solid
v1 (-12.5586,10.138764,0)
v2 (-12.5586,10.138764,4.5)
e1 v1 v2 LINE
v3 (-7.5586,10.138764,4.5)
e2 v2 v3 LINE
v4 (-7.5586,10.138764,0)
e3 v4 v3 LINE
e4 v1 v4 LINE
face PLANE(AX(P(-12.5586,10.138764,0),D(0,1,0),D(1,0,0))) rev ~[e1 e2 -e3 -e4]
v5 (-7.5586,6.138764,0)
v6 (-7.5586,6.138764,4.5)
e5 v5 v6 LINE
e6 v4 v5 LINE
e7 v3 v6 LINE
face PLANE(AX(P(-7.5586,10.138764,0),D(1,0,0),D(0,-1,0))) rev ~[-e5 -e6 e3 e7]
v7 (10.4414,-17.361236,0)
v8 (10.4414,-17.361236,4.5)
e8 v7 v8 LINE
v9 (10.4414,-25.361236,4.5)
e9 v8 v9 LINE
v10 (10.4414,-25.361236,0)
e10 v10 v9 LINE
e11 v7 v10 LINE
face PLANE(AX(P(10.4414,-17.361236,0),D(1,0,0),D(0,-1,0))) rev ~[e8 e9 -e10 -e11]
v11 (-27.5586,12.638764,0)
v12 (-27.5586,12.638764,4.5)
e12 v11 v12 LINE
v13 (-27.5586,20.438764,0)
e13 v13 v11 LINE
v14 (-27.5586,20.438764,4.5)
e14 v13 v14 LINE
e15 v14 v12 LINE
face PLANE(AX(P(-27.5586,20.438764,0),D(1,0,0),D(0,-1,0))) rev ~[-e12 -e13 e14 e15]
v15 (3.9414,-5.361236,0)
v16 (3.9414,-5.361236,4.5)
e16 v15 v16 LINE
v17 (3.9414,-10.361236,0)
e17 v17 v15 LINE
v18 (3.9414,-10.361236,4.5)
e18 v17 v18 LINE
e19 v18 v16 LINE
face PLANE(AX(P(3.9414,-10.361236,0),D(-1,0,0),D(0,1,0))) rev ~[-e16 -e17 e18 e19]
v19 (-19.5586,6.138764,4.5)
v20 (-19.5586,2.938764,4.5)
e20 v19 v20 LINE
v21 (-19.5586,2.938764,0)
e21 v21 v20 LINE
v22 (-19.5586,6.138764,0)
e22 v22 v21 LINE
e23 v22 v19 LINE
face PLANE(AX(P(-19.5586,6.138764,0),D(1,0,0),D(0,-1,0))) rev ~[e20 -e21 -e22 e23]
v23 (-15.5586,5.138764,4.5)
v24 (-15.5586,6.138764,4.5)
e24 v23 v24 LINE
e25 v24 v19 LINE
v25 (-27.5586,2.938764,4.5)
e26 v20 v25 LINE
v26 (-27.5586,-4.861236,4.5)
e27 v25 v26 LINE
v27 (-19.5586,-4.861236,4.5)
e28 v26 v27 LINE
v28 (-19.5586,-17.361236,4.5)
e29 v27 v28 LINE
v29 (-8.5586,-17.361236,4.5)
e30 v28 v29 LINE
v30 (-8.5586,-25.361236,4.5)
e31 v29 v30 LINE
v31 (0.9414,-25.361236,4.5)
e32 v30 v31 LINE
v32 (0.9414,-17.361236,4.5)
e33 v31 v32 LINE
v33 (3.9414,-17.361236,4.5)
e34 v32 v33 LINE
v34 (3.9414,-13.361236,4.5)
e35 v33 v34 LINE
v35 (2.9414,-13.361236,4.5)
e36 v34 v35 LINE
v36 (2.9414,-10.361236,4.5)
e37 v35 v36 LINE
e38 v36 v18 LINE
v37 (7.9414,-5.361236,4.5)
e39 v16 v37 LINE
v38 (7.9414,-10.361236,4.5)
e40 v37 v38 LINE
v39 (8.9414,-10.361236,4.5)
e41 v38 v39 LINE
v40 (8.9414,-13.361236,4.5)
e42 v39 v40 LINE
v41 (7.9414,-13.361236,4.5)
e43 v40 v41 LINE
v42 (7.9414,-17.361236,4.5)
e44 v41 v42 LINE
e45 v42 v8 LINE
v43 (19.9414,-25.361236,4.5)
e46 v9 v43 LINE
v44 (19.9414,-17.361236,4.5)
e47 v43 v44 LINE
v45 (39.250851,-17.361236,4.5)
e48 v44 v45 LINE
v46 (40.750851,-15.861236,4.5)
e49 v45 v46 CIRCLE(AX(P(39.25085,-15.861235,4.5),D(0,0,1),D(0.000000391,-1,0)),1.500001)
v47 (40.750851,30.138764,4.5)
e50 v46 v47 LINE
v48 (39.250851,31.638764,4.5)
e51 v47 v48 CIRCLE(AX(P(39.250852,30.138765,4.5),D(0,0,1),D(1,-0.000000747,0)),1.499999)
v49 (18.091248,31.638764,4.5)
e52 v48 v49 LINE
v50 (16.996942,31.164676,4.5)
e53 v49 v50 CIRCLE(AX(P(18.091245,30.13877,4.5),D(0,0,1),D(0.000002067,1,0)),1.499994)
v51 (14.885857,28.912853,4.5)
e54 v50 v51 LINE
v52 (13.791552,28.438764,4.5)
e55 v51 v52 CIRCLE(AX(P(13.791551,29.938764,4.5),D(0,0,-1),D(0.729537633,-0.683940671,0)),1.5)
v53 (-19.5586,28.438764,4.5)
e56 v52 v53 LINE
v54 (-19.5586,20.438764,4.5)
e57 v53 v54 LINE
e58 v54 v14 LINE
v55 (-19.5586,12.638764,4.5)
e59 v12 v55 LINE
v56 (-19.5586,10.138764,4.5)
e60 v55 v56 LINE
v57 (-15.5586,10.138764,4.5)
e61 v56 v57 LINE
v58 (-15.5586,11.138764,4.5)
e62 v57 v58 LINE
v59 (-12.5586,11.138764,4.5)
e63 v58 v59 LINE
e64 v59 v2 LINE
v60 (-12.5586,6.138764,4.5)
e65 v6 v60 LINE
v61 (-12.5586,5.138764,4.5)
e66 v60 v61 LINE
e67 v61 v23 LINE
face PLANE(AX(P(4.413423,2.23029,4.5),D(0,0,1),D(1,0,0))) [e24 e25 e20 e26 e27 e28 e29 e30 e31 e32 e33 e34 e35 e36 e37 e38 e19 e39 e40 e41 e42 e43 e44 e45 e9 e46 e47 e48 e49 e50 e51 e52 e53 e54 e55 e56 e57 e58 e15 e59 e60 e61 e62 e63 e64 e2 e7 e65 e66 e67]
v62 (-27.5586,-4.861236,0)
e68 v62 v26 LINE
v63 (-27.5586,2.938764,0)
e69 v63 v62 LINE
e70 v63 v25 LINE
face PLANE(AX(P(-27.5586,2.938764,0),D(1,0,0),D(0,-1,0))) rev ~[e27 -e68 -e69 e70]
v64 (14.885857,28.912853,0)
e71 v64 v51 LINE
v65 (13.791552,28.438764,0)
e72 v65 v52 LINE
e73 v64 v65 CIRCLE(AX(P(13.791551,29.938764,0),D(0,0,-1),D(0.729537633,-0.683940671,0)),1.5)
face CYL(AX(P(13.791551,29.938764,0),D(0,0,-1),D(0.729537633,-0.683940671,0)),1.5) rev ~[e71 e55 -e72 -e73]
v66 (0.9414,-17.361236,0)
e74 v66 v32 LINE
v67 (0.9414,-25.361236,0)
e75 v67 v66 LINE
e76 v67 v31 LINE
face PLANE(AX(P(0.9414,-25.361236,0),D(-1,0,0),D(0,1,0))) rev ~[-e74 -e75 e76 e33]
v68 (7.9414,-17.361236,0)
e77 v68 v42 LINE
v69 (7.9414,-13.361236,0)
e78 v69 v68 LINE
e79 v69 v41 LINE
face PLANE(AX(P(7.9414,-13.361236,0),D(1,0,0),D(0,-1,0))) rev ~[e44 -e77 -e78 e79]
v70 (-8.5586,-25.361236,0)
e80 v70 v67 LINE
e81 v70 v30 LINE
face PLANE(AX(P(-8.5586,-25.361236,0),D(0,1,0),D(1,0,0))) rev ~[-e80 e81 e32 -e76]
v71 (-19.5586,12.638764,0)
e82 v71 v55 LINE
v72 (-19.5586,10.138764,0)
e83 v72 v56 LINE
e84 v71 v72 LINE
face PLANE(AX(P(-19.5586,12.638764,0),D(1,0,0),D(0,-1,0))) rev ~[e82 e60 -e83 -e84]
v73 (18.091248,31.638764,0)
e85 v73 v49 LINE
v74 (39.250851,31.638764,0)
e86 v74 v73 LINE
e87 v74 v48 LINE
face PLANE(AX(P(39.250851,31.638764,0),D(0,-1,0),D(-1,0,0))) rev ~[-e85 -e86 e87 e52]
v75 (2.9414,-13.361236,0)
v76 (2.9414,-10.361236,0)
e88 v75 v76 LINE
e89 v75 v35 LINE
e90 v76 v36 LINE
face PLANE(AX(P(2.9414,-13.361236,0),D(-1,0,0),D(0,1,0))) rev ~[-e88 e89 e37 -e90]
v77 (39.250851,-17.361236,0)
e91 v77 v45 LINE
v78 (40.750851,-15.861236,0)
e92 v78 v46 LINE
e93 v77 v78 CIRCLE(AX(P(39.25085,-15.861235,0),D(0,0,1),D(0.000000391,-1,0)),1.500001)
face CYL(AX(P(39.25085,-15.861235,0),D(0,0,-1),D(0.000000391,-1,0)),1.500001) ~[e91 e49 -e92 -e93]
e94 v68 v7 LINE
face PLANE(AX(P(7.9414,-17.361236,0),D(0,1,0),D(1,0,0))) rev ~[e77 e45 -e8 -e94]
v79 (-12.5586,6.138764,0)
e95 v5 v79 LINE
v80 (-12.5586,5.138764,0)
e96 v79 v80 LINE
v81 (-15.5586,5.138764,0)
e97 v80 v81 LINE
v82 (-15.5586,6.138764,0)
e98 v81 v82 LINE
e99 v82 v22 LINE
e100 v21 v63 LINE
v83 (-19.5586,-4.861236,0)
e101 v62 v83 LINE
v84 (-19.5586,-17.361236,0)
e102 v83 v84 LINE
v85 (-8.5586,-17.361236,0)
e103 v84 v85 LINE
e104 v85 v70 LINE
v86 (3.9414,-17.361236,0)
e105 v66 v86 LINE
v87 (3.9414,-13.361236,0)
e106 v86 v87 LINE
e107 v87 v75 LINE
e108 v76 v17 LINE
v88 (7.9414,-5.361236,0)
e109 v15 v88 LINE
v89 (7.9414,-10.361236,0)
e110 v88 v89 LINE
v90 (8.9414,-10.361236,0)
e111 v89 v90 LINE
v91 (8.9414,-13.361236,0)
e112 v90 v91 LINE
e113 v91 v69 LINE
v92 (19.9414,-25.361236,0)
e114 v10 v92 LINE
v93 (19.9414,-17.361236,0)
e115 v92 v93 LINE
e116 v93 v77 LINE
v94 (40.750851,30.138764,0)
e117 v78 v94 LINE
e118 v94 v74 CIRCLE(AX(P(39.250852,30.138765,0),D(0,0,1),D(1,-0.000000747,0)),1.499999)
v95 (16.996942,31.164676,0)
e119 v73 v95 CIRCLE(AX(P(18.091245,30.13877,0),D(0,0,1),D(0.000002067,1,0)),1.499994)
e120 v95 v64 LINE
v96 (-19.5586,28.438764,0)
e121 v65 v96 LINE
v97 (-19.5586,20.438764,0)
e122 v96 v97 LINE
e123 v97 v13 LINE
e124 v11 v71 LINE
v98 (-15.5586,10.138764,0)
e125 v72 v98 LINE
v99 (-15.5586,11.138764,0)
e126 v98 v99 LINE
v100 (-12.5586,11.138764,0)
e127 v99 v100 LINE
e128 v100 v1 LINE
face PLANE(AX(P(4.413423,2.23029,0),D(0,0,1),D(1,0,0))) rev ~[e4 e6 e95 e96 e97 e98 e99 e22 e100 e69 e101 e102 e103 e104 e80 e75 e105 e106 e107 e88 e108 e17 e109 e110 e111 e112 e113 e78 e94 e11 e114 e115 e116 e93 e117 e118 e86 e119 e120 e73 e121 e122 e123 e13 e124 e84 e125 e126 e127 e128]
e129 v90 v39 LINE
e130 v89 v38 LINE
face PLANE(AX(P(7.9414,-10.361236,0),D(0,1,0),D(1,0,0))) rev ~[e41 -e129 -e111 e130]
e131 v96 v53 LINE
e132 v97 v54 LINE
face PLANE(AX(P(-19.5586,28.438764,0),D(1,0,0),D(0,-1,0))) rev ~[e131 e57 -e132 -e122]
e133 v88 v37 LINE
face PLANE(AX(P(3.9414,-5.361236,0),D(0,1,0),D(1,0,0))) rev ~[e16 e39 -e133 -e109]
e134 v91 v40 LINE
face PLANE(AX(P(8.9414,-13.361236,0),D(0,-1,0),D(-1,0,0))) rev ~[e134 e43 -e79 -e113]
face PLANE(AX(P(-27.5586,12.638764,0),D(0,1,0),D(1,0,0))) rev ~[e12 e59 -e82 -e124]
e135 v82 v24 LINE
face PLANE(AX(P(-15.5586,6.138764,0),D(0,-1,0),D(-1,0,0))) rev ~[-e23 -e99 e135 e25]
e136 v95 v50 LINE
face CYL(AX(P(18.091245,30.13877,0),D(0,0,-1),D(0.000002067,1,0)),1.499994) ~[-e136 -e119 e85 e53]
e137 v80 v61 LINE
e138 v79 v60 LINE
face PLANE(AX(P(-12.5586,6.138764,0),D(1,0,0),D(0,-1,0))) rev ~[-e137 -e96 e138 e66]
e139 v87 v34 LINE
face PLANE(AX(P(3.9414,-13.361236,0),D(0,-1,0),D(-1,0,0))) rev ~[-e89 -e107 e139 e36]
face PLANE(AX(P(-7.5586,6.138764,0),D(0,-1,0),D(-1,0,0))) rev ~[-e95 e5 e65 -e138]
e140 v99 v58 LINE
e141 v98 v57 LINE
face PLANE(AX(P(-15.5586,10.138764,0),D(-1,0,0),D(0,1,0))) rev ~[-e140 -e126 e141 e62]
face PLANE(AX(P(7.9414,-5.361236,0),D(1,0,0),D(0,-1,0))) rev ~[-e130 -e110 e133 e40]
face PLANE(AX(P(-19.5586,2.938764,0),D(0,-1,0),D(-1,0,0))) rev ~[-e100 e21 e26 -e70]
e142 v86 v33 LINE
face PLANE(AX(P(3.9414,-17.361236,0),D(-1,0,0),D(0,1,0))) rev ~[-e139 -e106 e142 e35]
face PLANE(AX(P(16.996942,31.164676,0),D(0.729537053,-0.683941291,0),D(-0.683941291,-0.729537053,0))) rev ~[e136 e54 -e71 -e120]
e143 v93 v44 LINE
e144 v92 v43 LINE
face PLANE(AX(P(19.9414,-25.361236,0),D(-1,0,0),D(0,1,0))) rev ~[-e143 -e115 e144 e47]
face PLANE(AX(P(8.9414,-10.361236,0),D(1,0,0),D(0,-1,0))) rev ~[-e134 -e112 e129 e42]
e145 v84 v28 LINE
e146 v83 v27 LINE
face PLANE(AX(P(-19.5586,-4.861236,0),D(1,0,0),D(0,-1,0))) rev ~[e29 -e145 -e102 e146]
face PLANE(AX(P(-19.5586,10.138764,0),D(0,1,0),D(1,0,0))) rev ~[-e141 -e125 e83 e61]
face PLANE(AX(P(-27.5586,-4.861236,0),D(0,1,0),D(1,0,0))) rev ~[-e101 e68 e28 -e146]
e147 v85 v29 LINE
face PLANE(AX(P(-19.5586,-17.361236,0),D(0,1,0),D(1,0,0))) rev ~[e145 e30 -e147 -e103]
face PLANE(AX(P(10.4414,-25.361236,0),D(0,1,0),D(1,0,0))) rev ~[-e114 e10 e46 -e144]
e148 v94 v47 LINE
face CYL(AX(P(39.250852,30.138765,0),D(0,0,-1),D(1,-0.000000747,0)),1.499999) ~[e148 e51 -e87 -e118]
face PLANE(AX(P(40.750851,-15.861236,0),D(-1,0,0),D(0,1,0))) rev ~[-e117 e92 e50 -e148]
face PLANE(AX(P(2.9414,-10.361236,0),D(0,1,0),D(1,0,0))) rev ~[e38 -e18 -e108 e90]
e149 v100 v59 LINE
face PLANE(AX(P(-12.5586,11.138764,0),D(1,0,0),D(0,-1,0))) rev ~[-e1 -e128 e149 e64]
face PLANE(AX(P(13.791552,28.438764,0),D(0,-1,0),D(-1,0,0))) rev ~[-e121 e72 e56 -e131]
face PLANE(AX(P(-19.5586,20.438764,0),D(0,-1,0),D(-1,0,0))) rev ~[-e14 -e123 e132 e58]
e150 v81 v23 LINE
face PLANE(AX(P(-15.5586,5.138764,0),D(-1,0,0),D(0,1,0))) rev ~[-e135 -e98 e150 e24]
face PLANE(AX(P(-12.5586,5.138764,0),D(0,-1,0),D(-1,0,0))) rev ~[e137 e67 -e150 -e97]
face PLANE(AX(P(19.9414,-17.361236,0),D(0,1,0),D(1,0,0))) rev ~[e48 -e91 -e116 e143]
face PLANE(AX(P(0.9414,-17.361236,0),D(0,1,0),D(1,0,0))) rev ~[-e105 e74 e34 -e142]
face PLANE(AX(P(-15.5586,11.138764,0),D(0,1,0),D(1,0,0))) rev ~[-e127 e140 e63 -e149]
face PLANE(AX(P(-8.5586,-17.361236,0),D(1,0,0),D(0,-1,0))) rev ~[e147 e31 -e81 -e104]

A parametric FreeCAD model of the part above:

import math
import FreeCAD as App
import Part
import Sketcher
from FreeCAD import Vector
Q = App.Units.Quantity

doc = App.newDocument("Part")
body = doc.addObject("PartDesign::Body", "Body")

# Sketch on XY plane
sketch1 = doc.addObject("Sketcher::SketchObject", "Sketch")
body.addObject(sketch1)
sketch1.AttachmentSupport = (doc.XY_Plane, [""])
sketch1.MapMode = "FlatFace"
sketch1.addGeometry([
    Part.LineSegment(Vector(13.791552, 28.438764, 0), Vector(-19.5586, 28.438764, 0)),  # 0
    Part.LineSegment(Vector(-19.5586, 28.438764, 0), Vector(-19.5586, 20.438764, 0)),  # 1
    Part.LineSegment(Vector(-19.5586, 20.438764, 0), Vector(-27.5586, 20.438764, 0)),  # 2
    Part.LineSegment(Vector(-27.5586, 20.438764, 0), Vector(-27.5586, 12.638764, 0)),  # 3
    Part.LineSegment(Vector(-27.5586, 12.638764, 0), Vector(-19.5586, 12.638764, 0)),  # 4
    Part.LineSegment(Vector(-19.5586, 12.638764, 0), Vector(-19.5586, 10.138764, 0)),  # 5
    Part.LineSegment(Vector(-19.5586, 10.138764, 0), Vector(-15.5586, 10.138764, 0)),  # 6
    Part.LineSegment(Vector(-15.5586, 10.138764, 0), Vector(-15.5586, 11.138764, 0)),  # 7
    Part.LineSegment(Vector(-15.5586, 11.138764, 0), Vector(-12.5586, 11.138764, 0)),  # 8
    Part.LineSegment(Vector(-12.5586, 11.138764, 0), Vector(-12.5586, 10.138764, 0)),  # 9
    Part.LineSegment(Vector(-12.5586, 10.138764, 0), Vector(-7.5586, 10.138764, 0)),  # 10
    Part.LineSegment(Vector(-7.5586, 10.138764, 0), Vector(-7.5586, 6.138764, 0)),  # 11
    Part.LineSegment(Vector(-7.5586, 6.138764, 0), Vector(-12.5586, 6.138764, 0)),  # 12
    Part.LineSegment(Vector(-12.5586, 6.138764, 0), Vector(-12.5586, 5.138764, 0)),  # 13
    Part.LineSegment(Vector(-12.5586, 5.138764, 0), Vector(-15.5586, 5.138764, 0)),  # 14
    Part.LineSegment(Vector(-15.5586, 5.138764, 0), Vector(-15.5586, 6.138764, 0)),  # 15
    Part.LineSegment(Vector(-15.5586, 6.138764, 0), Vector(-19.5586, 6.138764, 0)),  # 16
    Part.LineSegment(Vector(-19.5586, 6.138764, 0), Vector(-19.5586, 2.938764, 0)),  # 17
    Part.LineSegment(Vector(-19.5586, 2.938764, 0), Vector(-27.5586, 2.938764, 0)),  # 18
    Part.LineSegment(Vector(-27.5586, 2.938764, 0), Vector(-27.5586, -4.861236, 0)),  # 19
    Part.LineSegment(Vector(-27.5586, -4.861236, 0), Vector(-19.5586, -4.861236, 0)),  # 20
    Part.LineSegment(Vector(-19.5586, -4.861236, 0), Vector(-19.5586, -17.361236, 0)),  # 21
    Part.LineSegment(Vector(-19.5586, -17.361236, 0), Vector(-8.5586, -17.361236, 0)),  # 22
    Part.LineSegment(Vector(-8.5586, -17.361236, 0), Vector(-8.5586, -25.361236, 0)),  # 23
    Part.LineSegment(Vector(-8.5586, -25.361236, 0), Vector(0.9414, -25.361236, 0)),  # 24
    Part.LineSegment(Vector(0.9414, -25.361236, 0), Vector(0.9414, -17.361236, 0)),  # 25
    Part.LineSegment(Vector(0.9414, -17.361236, 0), Vector(3.9414, -17.361236, 0)),  # 26
    Part.LineSegment(Vector(3.9414, -17.361236, 0), Vector(3.9414, -13.361236, 0)),  # 27
    Part.LineSegment(Vector(3.9414, -13.361236, 0), Vector(2.9414, -13.361236, 0)),  # 28
    Part.LineSegment(Vector(2.9414, -13.361236, 0), Vector(2.9414, -10.361236, 0)),  # 29
    Part.LineSegment(Vector(2.9414, -10.361236, 0), Vector(3.9414, -10.361236, 0)),  # 30
    Part.LineSegment(Vector(3.9414, -10.361236, 0), Vector(3.9414, -5.361236, 0)),  # 31
    Part.LineSegment(Vector(3.9414, -5.361236, 0), Vector(7.9414, -5.361236, 0)),  # 32
    Part.LineSegment(Vector(7.9414, -5.361236, 0), Vector(7.9414, -10.361236, 0)),  # 33
    Part.LineSegment(Vector(7.9414, -10.361236, 0), Vector(8.9414, -10.361236, 0)),  # 34
    Part.LineSegment(Vector(8.9414, -10.361236, 0), Vector(8.9414, -13.361236, 0)),  # 35
    Part.LineSegment(Vector(8.9414, -13.361236, 0), Vector(7.9414, -13.361236, 0)),  # 36
    Part.LineSegment(Vector(7.9414, -13.361236, 0), Vector(7.9414, -17.361236, 0)),  # 37
    Part.LineSegment(Vector(7.9414, -17.361236, 0), Vector(10.4414, -17.361236, 0)),  # 38
    Part.LineSegment(Vector(10.4414, -17.361236, 0), Vector(10.4414, -25.361236, 0)),  # 39
    Part.LineSegment(Vector(10.4414, -25.361236, 0), Vector(19.9414, -25.361236, 0)),  # 40
    Part.LineSegment(Vector(19.9414, -25.361236, 0), Vector(19.9414, -17.361236, 0)),  # 41
    Part.LineSegment(Vector(19.9414, -17.361236, 0), Vector(39.250851, -17.361236, 0)),  # 42
    Part.ArcOfCircle(Part.Circle(Vector(39.25085, -15.861235, 0), Vector(0, 0, 1), 1.500001), math.radians(-89.999978), math.radians(-0.000022)),  # 43
    Part.LineSegment(Vector(40.750851, -15.861236, 0), Vector(40.750851, 30.138764, 0)),  # 44
    Part.ArcOfCircle(Part.Circle(Vector(39.250852, 30.138765, 0), Vector(0, 0, 1), 1.499999), math.radians(-0.000043), math.radians(90.000043)),  # 45
    Part.LineSegment(Vector(39.250851, 31.638764, 0), Vector(18.091248, 31.638764, 0)),  # 46
    Part.ArcOfCircle(Part.Circle(Vector(18.091245, 30.13877, 0), Vector(0, 0, 1), 1.499994), math.radians(89.999882), math.radians(136.847694)),  # 47
    Part.LineSegment(Vector(16.996942, 31.164676, 0), Vector(14.885857, 28.912853, 0)),  # 48
    Part.ArcOfCircle(Part.Circle(Vector(13.791551, 29.938764, 0), Vector(0, 0, 1), 1.5), math.radians(-89.999944), math.radians(-43.152354)),  # 49
], False)
sketch1.addConstraint([
    Sketcher.Constraint("Coincident", 0, 2, 1, 1),
    Sketcher.Constraint("Coincident", 1, 2, 2, 1),
    Sketcher.Constraint("Coincident", 2, 2, 3, 1),
    Sketcher.Constraint("Coincident", 3, 2, 4, 1),
    Sketcher.Constraint("Coincident", 4, 2, 5, 1),
    Sketcher.Constraint("Coincident", 5, 2, 6, 1),
    Sketcher.Constraint("Coincident", 6, 2, 7, 1),
    Sketcher.Constraint("Coincident", 7, 2, 8, 1),
    Sketcher.Constraint("Coincident", 8, 2, 9, 1),
    Sketcher.Constraint("Coincident", 9, 2, 10, 1),
    Sketcher.Constraint("Coincident", 10, 2, 11, 1),
    Sketcher.Constraint("Coincident", 11, 2, 12, 1),
    Sketcher.Constraint("Coincident", 12, 2, 13, 1),
    Sketcher.Constraint("Coincident", 13, 2, 14, 1),
    Sketcher.Constraint("Coincident", 14, 2, 15, 1),
    Sketcher.Constraint("Coincident", 15, 2, 16, 1),
    Sketcher.Constraint("Coincident", 16, 2, 17, 1),
    Sketcher.Constraint("Coincident", 17, 2, 18, 1),
    Sketcher.Constraint("Coincident", 18, 2, 19, 1),
    Sketcher.Constraint("Coincident", 19, 2, 20, 1),
    Sketcher.Constraint("Coincident", 20, 2, 21, 1),
    Sketcher.Constraint("Coincident", 21, 2, 22, 1),
    Sketcher.Constraint("Coincident", 22, 2, 23, 1),
    Sketcher.Constraint("Coincident", 23, 2, 24, 1),
    Sketcher.Constraint("Coincident", 24, 2, 25, 1),
    Sketcher.Constraint("Coincident", 25, 2, 26, 1),
    Sketcher.Constraint("Coincident", 26, 2, 27, 1),
    Sketcher.Constraint("Coincident", 27, 2, 28, 1),
    Sketcher.Constraint("Coincident", 28, 2, 29, 1),
    Sketcher.Constraint("Coincident", 29, 2, 30, 1),
    Sketcher.Constraint("Coincident", 30, 2, 31, 1),
    Sketcher.Constraint("Coincident", 31, 2, 32, 1),
    Sketcher.Constraint("Coincident", 32, 2, 33, 1),
    Sketcher.Constraint("Coincident", 33, 2, 34, 1),
    Sketcher.Constraint("Coincident", 34, 2, 35, 1),
    Sketcher.Constraint("Coincident", 35, 2, 36, 1),
    Sketcher.Constraint("Coincident", 36, 2, 37, 1),
    Sketcher.Constraint("Coincident", 37, 2, 38, 1),
    Sketcher.Constraint("Coincident", 38, 2, 39, 1),
    Sketcher.Constraint("Coincident", 39, 2, 40, 1),
    Sketcher.Constraint("Coincident", 40, 2, 41, 1),
    Sketcher.Constraint("Coincident", 41, 2, 42, 1),
    Sketcher.Constraint("Tangent", 42, 2, 43, 1),
    Sketcher.Constraint("Tangent", 43, 2, 44, 1),
    Sketcher.Constraint("Tangent", 44, 2, 45, 1),
    Sketcher.Constraint("Tangent", 45, 2, 46, 1),
    Sketcher.Constraint("Coincident", 46, 2, 47, 1),
    Sketcher.Constraint("Tangent", 47, 2, 48, 1),
    Sketcher.Constraint("Tangent", 48, 2, 49, 2),
    Sketcher.Constraint("Tangent", 49, 1, 0, 1),
    Sketcher.Constraint("Horizontal", 0),
    Sketcher.Constraint("Vertical", 1),
    Sketcher.Constraint("Horizontal", 2),
    Sketcher.Constraint("Vertical", 3),
    Sketcher.Constraint("Horizontal", 4),
    Sketcher.Constraint("Vertical", 5),
    Sketcher.Constraint("Horizontal", 6),
    Sketcher.Constraint("Vertical", 7),
    Sketcher.Constraint("Horizontal", 8),
    Sketcher.Constraint("Vertical", 9),
    Sketcher.Constraint("Horizontal", 10),
    Sketcher.Constraint("Vertical", 11),
    Sketcher.Constraint("Horizontal", 12),
    Sketcher.Constraint("Vertical", 13),
    Sketcher.Constraint("Horizontal", 14),
    Sketcher.Constraint("Vertical", 15),
    Sketcher.Constraint("Horizontal", 16),
    Sketcher.Constraint("Vertical", 17),
    Sketcher.Constraint("Horizontal", 18),
    Sketcher.Constraint("Vertical", 19),
    Sketcher.Constraint("Horizontal", 20),
    Sketcher.Constraint("Vertical", 21),
    Sketcher.Constraint("Horizontal", 22),
    Sketcher.Constraint("Vertical", 23),
    Sketcher.Constraint("Horizontal", 24),
    Sketcher.Constraint("Vertical", 25),
    Sketcher.Constraint("Horizontal", 26),
    Sketcher.Constraint("Vertical", 27),
    Sketcher.Constraint("Horizontal", 28),
    Sketcher.Constraint("Vertical", 29),
    Sketcher.Constraint("Horizontal", 30),
    Sketcher.Constraint("Vertical", 31),
    Sketcher.Constraint("Horizontal", 32),
    Sketcher.Constraint("Vertical", 33),
    Sketcher.Constraint("Horizontal", 34),
    Sketcher.Constraint("Vertical", 35),
    Sketcher.Constraint("Horizontal", 36),
    Sketcher.Constraint("Vertical", 37),
    Sketcher.Constraint("Horizontal", 38),
    Sketcher.Constraint("Vertical", 39),
    Sketcher.Constraint("Horizontal", 40),
    Sketcher.Constraint("Vertical", 41),
    Sketcher.Constraint("Horizontal", 42),
    Sketcher.Constraint("Vertical", 44),
    Sketcher.Constraint("Horizontal", 46),
    Sketcher.Constraint("Equal", 43, 45),
    Sketcher.Constraint("Equal", 45, 49),
    Sketcher.Constraint("Horizontal", 6, 2, 9, 2),
    Sketcher.Constraint("Horizontal", 12, 2, 15, 2),
    Sketcher.Constraint("Horizontal", 22, 2, 25, 2),
    Sketcher.Constraint("Horizontal", 30, 2, 33, 2),
    Sketcher.Constraint("Horizontal", 28, 2, 35, 2),
    Sketcher.Constraint("Horizontal", 26, 2, 37, 2),
    Sketcher.Constraint("Horizontal", 24, 2, 39, 2),
    Sketcher.Constraint("Horizontal", 38, 2, 41, 2),
    Sketcher.Constraint("Vertical", 1, 2, 4, 2),
    Sketcher.Constraint("Vertical", 9, 2, 12, 2),
    Sketcher.Constraint("Vertical", 7, 2, 14, 2),
    Sketcher.Constraint("Vertical", 5, 2, 16, 2),
    Sketcher.Constraint("Vertical", 3, 2, 18, 2),
    Sketcher.Constraint("Vertical", 17, 2, 20, 2),
    Sketcher.Constraint("Vertical", 27, 2, 30, 2),
    Sketcher.Constraint("Vertical", 33, 2, 36, 2),
    Sketcher.Constraint("Equal", 14, 26),
    Sketcher.Constraint("Equal", 16, 32),
    Sketcher.Constraint("Equal", 30, 34),
    Sketcher.Constraint("Equal", 24, 40),
    Sketcher.Constraint("Equal", 20, 1),
    Sketcher.Constraint("Equal", 38, 5),
    Sketcher.Constraint("Equal", 36, 7),
    Sketcher.Constraint("Equal", 32, 11),
    Sketcher.Constraint("Equal", 9, 13),
    Sketcher.Constraint("Equal", 3, 19),
    Sketcher.Constraint("Equal", 1, 23),
    Sketcher.Constraint("Equal", 11, 27),
    Sketcher.Constraint("Equal", 26, 29),
    Sketcher.Constraint("Equal", 12, 31),
    Sketcher.Constraint("Radius", 43, Q("1.500001 mm")),
    Sketcher.Constraint("DistanceX", 2, 2, 2, 1, Q("8 mm")),
    Sketcher.Constraint("DistanceX", 6, 1, 6, 2, Q("4 mm")),
    Sketcher.Constraint("DistanceX", 8, 1, 8, 2, Q("3 mm")),
    Sketcher.Constraint("DistanceX", 10, 1, 10, 2, Q("5 mm")),
    Sketcher.Constraint("DistanceX", 22, 1, 22, 2, Q("11 mm")),
    Sketcher.Constraint("DistanceX", 28, 2, 28, 1, Q("1 mm")),
    Sketcher.Constraint("DistanceY", 44, 1, 44, 2, Q("46 mm")),
    Sketcher.Constraint("DistanceX", 24, 1, 24, 2, Q("9.5 mm")),
    Sketcher.Constraint("DistanceX", 38, 1, 38, 2, Q("2.5 mm")),
    Sketcher.Constraint("DistanceY", 3, 2, 3, 1, Q("7.8 mm")),
    Sketcher.Constraint("DistanceY", 17, 2, 17, 1, Q("3.2 mm")),
    Sketcher.Constraint("DistanceY", 21, 2, 21, 1, Q("12.5 mm")),
    Sketcher.Constraint("Radius", 47, Q("1.499994 mm")),
    Sketcher.Constraint("DistanceX", 0, 2, 0, 1, Q("33.350152 mm")),
    Sketcher.Constraint("DistanceX", 42, 1, 42, 2, Q("19.309451 mm")),
    Sketcher.Constraint("DistanceX", 0, 2, -1, 1, Q("19.5586 mm")),
    Sketcher.Constraint("DistanceX", 46, 2, 46, 1, Q("21.159603 mm")),
    Sketcher.Constraint("DistanceY", -1, 1, 47, 3, Q("30.13877 mm")),
    Sketcher.Constraint("DistanceY", 47, 2, 46, 2, Q("0.474088 mm")),
])
pad1 = doc.addObject("PartDesign::Pad", "Pad")
body.addObject(pad1)
pad1.Profile = sketch1
pad1.Length = 4.5

doc.recompute()
